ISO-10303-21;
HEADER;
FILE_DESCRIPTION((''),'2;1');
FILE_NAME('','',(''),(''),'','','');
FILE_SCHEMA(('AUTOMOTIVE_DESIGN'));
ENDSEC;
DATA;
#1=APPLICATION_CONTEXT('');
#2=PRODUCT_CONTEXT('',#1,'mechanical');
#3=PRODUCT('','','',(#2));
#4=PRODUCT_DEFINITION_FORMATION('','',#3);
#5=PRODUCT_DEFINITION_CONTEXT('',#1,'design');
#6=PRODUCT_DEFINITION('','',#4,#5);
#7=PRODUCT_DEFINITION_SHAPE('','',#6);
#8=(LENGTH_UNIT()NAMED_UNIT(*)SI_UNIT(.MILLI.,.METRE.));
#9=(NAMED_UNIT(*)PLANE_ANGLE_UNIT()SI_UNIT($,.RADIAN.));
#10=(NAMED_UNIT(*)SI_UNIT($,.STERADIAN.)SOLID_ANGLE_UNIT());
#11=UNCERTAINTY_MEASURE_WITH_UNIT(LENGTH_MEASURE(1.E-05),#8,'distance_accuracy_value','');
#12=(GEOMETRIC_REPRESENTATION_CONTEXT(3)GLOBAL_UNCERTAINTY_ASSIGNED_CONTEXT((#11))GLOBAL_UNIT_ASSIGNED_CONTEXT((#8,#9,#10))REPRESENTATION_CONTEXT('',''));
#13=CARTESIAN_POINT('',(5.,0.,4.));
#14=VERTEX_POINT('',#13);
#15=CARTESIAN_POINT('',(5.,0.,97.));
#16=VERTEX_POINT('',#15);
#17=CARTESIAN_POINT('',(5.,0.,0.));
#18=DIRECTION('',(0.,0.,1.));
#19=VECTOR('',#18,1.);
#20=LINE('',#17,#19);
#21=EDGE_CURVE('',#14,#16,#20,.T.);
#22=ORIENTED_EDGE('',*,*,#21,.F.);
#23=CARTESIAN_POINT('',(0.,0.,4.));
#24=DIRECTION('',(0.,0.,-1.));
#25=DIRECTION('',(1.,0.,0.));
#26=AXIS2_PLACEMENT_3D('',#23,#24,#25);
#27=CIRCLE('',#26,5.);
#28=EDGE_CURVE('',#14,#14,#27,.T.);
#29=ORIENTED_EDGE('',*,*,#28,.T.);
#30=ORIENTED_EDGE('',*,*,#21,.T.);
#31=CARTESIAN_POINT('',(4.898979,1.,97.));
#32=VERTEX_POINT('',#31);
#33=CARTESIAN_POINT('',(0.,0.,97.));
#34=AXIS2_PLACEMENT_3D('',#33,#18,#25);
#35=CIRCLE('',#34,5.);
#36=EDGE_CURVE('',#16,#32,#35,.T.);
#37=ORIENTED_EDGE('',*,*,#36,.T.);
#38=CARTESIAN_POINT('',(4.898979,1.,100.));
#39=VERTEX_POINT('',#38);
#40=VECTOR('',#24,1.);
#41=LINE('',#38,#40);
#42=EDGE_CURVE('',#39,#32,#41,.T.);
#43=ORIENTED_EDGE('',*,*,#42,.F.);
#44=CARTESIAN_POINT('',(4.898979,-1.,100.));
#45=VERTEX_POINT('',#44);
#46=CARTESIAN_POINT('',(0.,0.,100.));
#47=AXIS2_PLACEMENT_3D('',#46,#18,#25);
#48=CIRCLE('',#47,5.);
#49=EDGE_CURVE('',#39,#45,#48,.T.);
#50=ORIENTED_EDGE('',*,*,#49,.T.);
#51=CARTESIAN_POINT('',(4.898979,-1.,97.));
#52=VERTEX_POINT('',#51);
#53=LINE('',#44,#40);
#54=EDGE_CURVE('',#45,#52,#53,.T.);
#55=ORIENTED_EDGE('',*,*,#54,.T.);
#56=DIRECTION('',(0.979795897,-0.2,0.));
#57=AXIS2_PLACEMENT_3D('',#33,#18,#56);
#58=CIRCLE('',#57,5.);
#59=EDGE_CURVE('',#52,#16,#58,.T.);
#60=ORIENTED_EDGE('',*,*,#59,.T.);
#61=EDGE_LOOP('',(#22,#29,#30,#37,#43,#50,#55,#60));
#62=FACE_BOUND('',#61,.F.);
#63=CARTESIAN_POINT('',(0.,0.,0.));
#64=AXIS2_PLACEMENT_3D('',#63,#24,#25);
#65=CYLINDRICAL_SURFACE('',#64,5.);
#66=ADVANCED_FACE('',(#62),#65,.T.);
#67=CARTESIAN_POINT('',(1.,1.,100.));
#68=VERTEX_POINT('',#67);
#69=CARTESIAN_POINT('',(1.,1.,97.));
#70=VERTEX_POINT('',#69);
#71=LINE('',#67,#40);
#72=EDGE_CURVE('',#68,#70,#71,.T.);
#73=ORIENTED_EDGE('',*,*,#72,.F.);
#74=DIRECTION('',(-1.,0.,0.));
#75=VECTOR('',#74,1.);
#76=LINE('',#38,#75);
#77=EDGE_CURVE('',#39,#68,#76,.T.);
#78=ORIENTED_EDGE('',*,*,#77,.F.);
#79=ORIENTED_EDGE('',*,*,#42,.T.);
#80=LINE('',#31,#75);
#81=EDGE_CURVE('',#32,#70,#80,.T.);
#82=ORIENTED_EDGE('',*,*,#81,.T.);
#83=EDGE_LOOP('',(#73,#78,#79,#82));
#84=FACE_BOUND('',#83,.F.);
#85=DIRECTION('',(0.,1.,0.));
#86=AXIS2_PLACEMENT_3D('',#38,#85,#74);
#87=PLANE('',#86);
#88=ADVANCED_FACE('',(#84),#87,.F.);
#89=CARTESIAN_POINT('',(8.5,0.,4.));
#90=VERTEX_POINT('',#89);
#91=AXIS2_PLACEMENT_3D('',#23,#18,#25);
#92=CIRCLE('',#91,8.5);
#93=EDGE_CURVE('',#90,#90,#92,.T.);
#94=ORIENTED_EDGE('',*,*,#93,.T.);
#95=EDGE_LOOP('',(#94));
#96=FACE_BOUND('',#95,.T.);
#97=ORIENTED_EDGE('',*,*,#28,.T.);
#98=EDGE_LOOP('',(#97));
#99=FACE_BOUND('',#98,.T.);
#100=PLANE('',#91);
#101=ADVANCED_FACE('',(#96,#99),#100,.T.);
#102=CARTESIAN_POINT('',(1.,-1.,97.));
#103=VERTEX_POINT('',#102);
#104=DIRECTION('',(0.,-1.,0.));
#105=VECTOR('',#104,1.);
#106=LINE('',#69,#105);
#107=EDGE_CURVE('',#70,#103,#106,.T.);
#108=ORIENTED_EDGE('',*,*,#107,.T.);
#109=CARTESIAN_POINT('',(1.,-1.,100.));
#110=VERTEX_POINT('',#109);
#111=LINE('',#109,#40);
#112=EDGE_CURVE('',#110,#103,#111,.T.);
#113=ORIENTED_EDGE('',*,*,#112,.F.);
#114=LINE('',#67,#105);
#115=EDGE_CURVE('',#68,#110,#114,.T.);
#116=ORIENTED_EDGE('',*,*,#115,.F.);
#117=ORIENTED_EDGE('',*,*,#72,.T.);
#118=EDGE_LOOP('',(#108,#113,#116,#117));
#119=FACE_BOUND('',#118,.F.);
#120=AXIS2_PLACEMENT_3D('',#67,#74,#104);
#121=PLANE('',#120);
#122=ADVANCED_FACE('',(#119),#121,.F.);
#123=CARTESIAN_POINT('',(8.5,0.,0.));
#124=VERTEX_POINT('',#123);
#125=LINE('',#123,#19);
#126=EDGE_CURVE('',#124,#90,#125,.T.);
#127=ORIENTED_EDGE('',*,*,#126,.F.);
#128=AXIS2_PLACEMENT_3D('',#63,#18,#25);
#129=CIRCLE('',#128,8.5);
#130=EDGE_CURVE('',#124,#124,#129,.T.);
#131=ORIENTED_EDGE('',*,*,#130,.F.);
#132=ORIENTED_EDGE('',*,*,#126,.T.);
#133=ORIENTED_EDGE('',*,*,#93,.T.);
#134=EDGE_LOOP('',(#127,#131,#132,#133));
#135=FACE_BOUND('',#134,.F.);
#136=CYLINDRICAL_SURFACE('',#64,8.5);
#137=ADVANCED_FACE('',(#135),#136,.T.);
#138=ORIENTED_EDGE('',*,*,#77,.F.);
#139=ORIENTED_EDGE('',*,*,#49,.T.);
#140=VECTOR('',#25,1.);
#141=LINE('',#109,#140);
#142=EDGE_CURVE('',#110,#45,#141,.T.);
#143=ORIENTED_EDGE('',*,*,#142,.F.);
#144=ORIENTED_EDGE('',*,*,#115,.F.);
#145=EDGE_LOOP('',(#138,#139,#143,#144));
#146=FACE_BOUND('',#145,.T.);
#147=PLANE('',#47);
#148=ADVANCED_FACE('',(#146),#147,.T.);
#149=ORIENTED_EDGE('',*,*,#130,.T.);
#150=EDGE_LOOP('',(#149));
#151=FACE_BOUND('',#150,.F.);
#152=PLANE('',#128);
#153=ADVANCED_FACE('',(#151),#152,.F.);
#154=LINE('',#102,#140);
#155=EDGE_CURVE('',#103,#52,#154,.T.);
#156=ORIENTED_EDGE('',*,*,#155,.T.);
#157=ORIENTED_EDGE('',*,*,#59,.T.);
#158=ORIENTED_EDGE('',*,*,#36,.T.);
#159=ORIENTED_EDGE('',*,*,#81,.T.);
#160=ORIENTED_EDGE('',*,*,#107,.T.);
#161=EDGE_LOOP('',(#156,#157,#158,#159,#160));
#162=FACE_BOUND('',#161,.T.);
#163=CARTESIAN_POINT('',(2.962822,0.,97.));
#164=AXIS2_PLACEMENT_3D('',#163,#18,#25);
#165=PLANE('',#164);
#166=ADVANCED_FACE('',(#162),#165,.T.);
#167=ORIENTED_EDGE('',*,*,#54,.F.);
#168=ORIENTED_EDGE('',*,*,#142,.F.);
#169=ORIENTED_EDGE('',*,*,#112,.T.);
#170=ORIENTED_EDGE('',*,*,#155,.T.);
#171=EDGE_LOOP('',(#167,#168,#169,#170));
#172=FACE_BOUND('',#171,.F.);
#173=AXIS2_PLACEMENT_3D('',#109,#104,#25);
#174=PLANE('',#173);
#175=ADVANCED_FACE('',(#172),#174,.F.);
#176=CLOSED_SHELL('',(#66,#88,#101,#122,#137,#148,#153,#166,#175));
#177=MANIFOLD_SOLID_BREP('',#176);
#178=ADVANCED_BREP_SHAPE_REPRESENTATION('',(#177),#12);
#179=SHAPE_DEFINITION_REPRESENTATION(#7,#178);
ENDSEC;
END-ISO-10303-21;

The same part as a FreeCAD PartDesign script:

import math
import FreeCAD as App
import Part
import Sketcher

V = App.Vector

doc = App.newDocument("Part")
body = doc.addObject("PartDesign::Body", "Body")

# Sketch on XY plane
sketch1 = doc.addObject("Sketcher::SketchObject", "Sketch")
body.addObject(sketch1)
sketch1.AttachmentSupport = (doc.XY_Plane, [""])
sketch1.MapMode = "FlatFace"
sketch1.addGeometry(Part.Circle(V(0, 0, 0), V(0, 0, 1), 8.5), False)
sketch1.addConstraint(Sketcher.Constraint("Coincident", 0, 3, -1, 1))
sketch1.addConstraint(Sketcher.Constraint("Diameter", 0, 17.0))
pad1 = doc.addObject("PartDesign::Pad", "Pad")
body.addObject(pad1)
pad1.Profile = sketch1
pad1.Length = 4

# Sketch on XY plane
sketch2 = doc.addObject("Sketcher::SketchObject", "Sketch001")
body.addObject(sketch2)
sketch2.AttachmentSupport = (doc.XY_Plane, [""])
sketch2.MapMode = "FlatFace"
sketch2.addGeometry(Part.Circle(V(0, 0, 0), V(0, 0, 1), 5), False)
sketch2.addConstraint(Sketcher.Constraint("Coincident", 0, 3, -1, 1))
sketch2.addConstraint(Sketcher.Constraint("Diameter", 0, 10.0))
pad2 = doc.addObject("PartDesign::Pad", "Pad001")
body.addObject(pad2)
pad2.Profile = sketch2
pad2.Length = 100

# Sketch on XY plane
sketch3 = doc.addObject("Sketcher::SketchObject", "Sketch002")
body.addObject(sketch3)
sketch3.AttachmentSupport = (doc.XY_Plane, [""])
sketch3.MapMode = "FlatFace"
sketch3.AttachmentOffset = App.Placement(V(0, 0, 100), App.Rotation())
sketch3.addGeometry(Part.LineSegment(V(4.898979, 1, 0), V(1, 1, 0)), False)
sketch3.addGeometry(Part.LineSegment(V(1, 1, 0), V(1, -1, 0)), False)
sketch3.addGeometry(Part.LineSegment(V(1, -1, 0), V(4.898979, -1, 0)), False)
sketch3.addGeometry(Part.ArcOfCircle(Part.Circle(V(0, 0, 0), V(0, 0, 1), 5), math.radians(-11.536959), math.radians(0)), False)
sketch3.addGeometry(Part.ArcOfCircle(Part.Circle(V(0, 0, 0), V(0, 0, 1), 5), math.radians(0), math.radians(11.536959)), False)
sketch3.addConstraint(Sketcher.Constraint("Coincident", 0, 2, 1, 1))
sketch3.addConstraint(Sketcher.Constraint("Coincident", 1, 2, 2, 1))
sketch3.addConstraint(Sketcher.Constraint("Coincident", 2, 2, 3, 1))
sketch3.addConstraint(Sketcher.Constraint("Tangent", 3, 2, 4, 1))
sketch3.addConstraint(Sketcher.Constraint("Coincident", 4, 2, 0, 1))
sketch3.addConstraint(Sketcher.Constraint("Horizontal", 0))
sketch3.addConstraint(Sketcher.Constraint("Vertical", 1))
sketch3.addConstraint(Sketcher.Constraint("Horizontal", 2))
sketch3.addConstraint(Sketcher.Constraint("Coincident", 3, 3, -1, 1))
sketch3.addConstraint(Sketcher.Constraint("Equal", 3, 4))
sketch3.addConstraint(Sketcher.Constraint("PointOnObject", 3, 2, -1))
sketch3.addConstraint(Sketcher.Constraint("Vertical", 2, 2, 4, 2))
sketch3.addConstraint(Sketcher.Constraint("Radius", 3, 5.0))
sketch3.addConstraint(Sketcher.Constraint("DistanceY", 1, 2, 1, 1, 2.0))
sketch3.addConstraint(Sketcher.Constraint("DistanceX", -1, 1, 0, 2, 1.0))
pocket1 = doc.addObject("PartDesign::Pocket", "Pocket")
body.addObject(pocket1)
pocket1.Profile = sketch3
pocket1.Length = 3

doc.recompute()
